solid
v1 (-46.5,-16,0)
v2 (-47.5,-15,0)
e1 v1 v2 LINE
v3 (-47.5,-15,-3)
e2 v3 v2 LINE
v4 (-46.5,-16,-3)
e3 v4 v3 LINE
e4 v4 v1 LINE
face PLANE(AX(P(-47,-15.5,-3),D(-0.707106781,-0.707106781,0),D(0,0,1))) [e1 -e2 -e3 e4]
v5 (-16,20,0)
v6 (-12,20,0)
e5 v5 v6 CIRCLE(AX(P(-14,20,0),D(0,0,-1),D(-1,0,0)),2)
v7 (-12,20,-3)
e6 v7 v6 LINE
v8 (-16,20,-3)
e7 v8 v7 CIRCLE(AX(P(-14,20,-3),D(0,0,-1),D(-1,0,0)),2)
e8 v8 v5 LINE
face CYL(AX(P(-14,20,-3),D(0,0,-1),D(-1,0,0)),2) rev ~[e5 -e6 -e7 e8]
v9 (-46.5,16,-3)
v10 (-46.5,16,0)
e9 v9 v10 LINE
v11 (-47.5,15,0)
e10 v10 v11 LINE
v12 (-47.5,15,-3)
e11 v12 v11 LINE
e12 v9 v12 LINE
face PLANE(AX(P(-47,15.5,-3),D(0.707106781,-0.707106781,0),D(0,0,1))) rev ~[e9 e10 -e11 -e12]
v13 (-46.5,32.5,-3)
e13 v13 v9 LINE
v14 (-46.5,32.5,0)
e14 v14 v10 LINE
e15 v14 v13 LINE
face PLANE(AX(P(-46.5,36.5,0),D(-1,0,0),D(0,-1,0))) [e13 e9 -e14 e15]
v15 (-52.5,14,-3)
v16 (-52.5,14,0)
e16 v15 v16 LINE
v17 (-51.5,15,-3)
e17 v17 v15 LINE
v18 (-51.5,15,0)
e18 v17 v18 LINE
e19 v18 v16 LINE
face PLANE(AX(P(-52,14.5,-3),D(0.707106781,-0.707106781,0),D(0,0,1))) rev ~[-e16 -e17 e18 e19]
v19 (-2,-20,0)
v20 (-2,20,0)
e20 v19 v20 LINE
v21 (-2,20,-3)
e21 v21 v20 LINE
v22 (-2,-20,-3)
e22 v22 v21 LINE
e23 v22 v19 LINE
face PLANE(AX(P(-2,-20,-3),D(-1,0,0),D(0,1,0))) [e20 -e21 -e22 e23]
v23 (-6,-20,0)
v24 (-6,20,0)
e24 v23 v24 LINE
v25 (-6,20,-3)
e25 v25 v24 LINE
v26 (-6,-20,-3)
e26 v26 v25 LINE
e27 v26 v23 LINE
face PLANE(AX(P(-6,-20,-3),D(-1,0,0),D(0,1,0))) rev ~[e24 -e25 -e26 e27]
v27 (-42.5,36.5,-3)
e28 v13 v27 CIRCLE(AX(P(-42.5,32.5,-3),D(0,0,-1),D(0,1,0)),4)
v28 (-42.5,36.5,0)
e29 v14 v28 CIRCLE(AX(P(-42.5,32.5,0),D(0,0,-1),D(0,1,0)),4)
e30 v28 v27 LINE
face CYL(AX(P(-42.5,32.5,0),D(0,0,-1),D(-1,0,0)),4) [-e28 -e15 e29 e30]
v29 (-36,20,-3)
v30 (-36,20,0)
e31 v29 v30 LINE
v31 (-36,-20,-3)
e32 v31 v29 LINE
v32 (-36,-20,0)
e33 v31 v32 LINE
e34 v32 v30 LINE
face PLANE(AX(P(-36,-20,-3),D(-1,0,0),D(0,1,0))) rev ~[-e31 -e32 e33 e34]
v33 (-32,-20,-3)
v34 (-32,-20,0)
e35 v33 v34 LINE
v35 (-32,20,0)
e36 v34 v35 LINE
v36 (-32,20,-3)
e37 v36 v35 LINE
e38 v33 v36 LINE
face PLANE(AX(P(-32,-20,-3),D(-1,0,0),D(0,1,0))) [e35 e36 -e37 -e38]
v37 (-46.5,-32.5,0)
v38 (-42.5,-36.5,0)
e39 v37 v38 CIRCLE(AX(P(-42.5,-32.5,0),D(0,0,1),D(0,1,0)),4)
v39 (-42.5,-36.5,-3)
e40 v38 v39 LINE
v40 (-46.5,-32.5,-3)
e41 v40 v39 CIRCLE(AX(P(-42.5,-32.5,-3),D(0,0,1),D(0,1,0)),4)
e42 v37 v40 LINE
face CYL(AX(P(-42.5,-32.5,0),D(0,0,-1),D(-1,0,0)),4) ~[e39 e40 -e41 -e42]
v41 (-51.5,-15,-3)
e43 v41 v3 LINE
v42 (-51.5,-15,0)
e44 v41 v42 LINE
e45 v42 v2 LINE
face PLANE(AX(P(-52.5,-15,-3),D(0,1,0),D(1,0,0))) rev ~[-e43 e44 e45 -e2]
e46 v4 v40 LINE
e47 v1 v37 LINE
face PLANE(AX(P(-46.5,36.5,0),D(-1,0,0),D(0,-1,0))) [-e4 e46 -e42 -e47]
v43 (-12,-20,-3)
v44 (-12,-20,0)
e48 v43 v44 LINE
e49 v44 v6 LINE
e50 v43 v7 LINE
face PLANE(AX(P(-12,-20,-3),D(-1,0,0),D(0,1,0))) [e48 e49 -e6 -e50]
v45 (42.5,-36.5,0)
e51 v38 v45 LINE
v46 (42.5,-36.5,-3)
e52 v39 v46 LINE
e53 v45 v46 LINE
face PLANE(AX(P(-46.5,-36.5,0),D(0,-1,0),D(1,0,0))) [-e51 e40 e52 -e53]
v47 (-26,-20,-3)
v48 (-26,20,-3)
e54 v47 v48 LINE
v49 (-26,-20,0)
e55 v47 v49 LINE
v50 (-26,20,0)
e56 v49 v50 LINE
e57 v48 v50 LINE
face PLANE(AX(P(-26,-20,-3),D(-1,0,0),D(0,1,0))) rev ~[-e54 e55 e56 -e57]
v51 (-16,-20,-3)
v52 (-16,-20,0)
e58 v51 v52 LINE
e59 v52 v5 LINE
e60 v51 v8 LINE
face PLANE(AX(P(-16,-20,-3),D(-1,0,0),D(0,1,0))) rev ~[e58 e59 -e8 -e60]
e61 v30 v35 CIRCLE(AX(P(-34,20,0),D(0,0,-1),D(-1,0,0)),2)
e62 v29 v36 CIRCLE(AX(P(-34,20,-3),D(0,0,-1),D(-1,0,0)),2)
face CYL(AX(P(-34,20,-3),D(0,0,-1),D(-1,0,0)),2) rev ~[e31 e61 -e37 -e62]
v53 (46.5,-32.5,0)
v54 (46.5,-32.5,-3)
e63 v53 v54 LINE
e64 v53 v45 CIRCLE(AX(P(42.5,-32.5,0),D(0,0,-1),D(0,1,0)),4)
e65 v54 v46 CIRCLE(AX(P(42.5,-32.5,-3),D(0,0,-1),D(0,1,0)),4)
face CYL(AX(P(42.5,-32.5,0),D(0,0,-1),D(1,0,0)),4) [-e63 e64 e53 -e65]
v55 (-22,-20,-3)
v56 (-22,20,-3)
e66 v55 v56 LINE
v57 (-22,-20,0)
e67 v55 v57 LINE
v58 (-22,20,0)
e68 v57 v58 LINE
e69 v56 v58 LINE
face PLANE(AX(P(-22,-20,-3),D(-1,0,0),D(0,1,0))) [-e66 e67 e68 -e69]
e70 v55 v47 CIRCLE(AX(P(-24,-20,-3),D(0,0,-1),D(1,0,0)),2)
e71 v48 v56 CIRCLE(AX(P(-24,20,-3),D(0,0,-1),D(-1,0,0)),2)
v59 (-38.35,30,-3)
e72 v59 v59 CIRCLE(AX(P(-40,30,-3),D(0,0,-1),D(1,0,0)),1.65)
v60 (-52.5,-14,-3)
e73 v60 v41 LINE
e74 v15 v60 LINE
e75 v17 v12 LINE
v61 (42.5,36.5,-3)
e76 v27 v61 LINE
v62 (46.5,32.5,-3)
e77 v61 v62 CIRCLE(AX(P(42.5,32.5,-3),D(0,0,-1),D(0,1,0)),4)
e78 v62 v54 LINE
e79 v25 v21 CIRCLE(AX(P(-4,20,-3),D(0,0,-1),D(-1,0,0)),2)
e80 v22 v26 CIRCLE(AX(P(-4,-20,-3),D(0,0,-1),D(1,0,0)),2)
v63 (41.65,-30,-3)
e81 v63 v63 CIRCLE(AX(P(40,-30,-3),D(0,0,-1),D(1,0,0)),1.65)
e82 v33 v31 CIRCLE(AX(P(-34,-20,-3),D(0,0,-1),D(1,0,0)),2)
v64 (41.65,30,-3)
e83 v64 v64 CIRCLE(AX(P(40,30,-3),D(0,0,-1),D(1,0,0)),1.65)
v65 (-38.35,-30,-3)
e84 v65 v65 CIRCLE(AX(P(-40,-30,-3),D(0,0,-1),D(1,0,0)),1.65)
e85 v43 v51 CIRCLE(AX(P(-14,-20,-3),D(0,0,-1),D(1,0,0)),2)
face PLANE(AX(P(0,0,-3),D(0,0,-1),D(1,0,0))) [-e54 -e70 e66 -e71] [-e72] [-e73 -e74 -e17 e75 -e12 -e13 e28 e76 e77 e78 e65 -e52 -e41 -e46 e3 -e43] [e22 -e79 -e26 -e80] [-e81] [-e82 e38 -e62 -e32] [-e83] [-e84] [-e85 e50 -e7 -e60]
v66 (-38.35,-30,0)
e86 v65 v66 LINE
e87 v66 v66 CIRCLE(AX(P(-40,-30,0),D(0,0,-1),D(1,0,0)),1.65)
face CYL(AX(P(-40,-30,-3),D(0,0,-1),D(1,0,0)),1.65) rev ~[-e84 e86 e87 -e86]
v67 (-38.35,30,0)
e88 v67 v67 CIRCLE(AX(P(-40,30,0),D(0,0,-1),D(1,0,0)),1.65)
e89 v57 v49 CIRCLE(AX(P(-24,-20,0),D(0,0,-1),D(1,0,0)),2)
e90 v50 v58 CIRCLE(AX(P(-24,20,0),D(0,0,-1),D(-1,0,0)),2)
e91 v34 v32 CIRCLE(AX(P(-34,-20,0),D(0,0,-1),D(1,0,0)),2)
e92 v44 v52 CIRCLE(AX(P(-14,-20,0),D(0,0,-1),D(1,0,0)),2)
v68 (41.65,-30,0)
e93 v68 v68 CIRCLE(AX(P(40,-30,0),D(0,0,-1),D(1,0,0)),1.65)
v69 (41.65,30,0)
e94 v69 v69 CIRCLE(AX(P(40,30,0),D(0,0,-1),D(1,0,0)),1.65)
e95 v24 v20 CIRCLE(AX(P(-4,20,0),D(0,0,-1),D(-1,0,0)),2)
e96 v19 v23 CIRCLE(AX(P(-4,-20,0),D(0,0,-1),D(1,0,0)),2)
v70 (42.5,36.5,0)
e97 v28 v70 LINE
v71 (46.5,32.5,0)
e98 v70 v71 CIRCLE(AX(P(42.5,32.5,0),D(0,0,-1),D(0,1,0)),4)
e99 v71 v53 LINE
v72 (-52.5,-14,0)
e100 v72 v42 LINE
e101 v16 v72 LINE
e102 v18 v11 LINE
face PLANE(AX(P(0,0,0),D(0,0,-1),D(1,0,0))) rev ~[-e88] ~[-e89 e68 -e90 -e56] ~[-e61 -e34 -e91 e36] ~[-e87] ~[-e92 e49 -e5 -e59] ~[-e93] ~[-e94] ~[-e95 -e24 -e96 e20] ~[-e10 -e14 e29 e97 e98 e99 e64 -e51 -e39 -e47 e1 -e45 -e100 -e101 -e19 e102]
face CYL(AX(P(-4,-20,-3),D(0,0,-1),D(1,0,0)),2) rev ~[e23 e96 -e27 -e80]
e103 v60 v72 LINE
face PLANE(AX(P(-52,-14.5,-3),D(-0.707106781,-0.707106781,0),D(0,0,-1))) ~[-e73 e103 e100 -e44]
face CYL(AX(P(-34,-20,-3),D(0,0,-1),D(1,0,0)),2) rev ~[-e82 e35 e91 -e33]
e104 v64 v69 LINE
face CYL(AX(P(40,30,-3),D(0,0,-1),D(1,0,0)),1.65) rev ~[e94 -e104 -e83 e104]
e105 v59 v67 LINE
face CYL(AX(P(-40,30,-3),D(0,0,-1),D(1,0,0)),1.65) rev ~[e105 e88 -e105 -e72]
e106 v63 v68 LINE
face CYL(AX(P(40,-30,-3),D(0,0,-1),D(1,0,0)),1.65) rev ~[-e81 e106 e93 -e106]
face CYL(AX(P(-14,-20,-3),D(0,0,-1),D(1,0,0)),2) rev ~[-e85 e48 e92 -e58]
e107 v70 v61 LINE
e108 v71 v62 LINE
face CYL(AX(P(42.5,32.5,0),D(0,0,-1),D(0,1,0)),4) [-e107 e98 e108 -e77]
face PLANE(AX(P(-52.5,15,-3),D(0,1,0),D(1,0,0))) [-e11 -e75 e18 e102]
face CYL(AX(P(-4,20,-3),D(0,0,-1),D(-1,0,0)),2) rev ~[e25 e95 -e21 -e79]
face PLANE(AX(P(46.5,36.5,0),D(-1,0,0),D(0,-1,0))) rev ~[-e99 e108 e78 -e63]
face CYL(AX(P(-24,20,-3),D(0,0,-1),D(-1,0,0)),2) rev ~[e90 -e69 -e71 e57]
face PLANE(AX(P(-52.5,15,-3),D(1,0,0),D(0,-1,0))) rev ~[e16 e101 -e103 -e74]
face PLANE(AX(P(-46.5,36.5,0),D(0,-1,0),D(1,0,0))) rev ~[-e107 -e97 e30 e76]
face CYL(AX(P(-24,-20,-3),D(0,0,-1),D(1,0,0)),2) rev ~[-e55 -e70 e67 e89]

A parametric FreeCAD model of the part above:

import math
import FreeCAD as App
import Part
import Sketcher


def edges_at(feature, points):
    """Names of the edges that pass closest to the given points."""
    edges = feature.Shape.Edges
    near = lambda p: min(range(len(edges)), key=lambda i: edges[i].distToShape(Part.Vertex(*p))[0])
    return sorted({f"Edge{near(p) + 1}" for p in points})

doc = App.newDocument("Part")
body = doc.addObject("PartDesign::Body", "Body")

# Sketch on XY plane
sketch1 = doc.addObject("Sketcher::SketchObject", "Sketch")
body.addObject(sketch1)
sketch1.AttachmentSupport = (doc.XY_Plane, [""])
sketch1.MapMode = "FlatFace"
sketch1.addGeometry(Part.LineSegment(App.Vector(-46, -36, 0), App.Vector(-46, 36, 0)), False)
sketch1.addGeometry(Part.LineSegment(App.Vector(-46, 36, 0), App.Vector(46, 36, 0)), False)
sketch1.addGeometry(Part.LineSegment(App.Vector(46, 36, 0), App.Vector(46, -36, 0)), False)
sketch1.addGeometry(Part.LineSegment(App.Vector(46, -36, 0), App.Vector(-46, -36, 0)), False)
sketch1.addConstraint(Sketcher.Constraint("Coincident", 0, 2, 1, 1))
sketch1.addConstraint(Sketcher.Constraint("Coincident", 1, 2, 2, 1))
sketch1.addConstraint(Sketcher.Constraint("Coincident", 2, 2, 3, 1))
sketch1.addConstraint(Sketcher.Constraint("Coincident", 3, 2, 0, 1))
sketch1.addConstraint(Sketcher.Constraint("Vertical", 0))
sketch1.addConstraint(Sketcher.Constraint("Horizontal", 1))
sketch1.addConstraint(Sketcher.Constraint("Vertical", 2))
sketch1.addConstraint(Sketcher.Constraint("Horizontal", 3))
sketch1.addConstraint(Sketcher.Constraint("Symmetric", 0, 2, 2, 2, -1, 1))
sketch1.addConstraint(Sketcher.Constraint("DistanceX", 1, 1, 1, 2, 93.0))
sketch1.addConstraint(Sketcher.Constraint("DistanceY", 0, 1, 0, 2, 73.0))
pad1 = doc.addObject("PartDesign::Pad", "Pad")
body.addObject(pad1)
pad1.Profile = sketch1
pad1.Length = 3
pad1.Reversed = True
doc.recompute()

fillet = doc.addObject("PartDesign::Fillet", "Fillet")
body.addObject(fillet)
fillet.Base = (pad1, edges_at(pad1, [
    (-46.5, 36.5, -1.5),
    (-46.5, -36.5, -1.5),
    (46.5, -36.5, -1.5),
    (46.5, 36.5, -1.5),
]))
fillet.Radius = 4

# Sketch on XY plane
sketch2 = doc.addObject("Sketcher::SketchObject", "Sketch001")
body.addObject(sketch2)
sketch2.AttachmentSupport = (doc.XY_Plane, [""])
sketch2.MapMode = "FlatFace"
sketch2.AttachmentOffset = App.Placement(App.Vector(0, 0, -3), App.Rotation())
sketch2.addGeometry(Part.Circle(App.Vector(-40, -30, 0), App.Vector(0, 0, 1), 1.6), False)
sketch2.addGeometry(Part.Circle(App.Vector(-40, 30, 0), App.Vector(0, 0, 1), 1.6), False)
sketch2.addGeometry(Part.Circle(App.Vector(40, -30, 0), App.Vector(0, 0, 1), 1.6), False)
sketch2.addGeometry(Part.Circle(App.Vector(40, 30, 0), App.Vector(0, 0, 1), 1.6), False)
sketch2.addConstraint(Sketcher.Constraint("Equal", 0, 1))
sketch2.addConstraint(Sketcher.Constraint("Equal", 1, 2))
sketch2.addConstraint(Sketcher.Constraint("Equal", 2, 3))
sketch2.addConstraint(Sketcher.Constraint("Symmetric", 1, 3, 2, 3, -1, 1))
sketch2.addConstraint(Sketcher.Constraint("Symmetric", 0, 3, 3, 3, -1, 1))
sketch2.addConstraint(Sketcher.Constraint("Symmetric", 0, 3, 2, 3, -2))
sketch2.addConstraint(Sketcher.Constraint("Diameter", 0, 3.3))
sketch2.addConstraint(Sketcher.Constraint("DistanceX", 0, 3, -1, 1, 40.0))
sketch2.addConstraint(Sketcher.Constraint("DistanceY", 0, 3, -1, 1, 30.0))
pocket1 = doc.addObject("PartDesign::Pocket", "Pocket")
body.addObject(pocket1)
pocket1.Profile = sketch2
pocket1.Type = "ThroughAll"
pocket1.Reversed = True

# Sketch on XY plane
sketch3 = doc.addObject("Sketcher::SketchObject", "Sketch002")
body.addObject(sketch3)
sketch3.AttachmentSupport = (doc.XY_Plane, [""])
sketch3.MapMode = "FlatFace"
sketch3.AttachmentOffset = App.Placement(App.Vector(0, 0, -3), App.Rotation())
sketch3.addGeometry(Part.LineSegment(App.Vector(-52, -15, 0), App.Vector(-52, 15, 0)), False)
sketch3.addGeometry(Part.LineSegment(App.Vector(-52, 15, 0), App.Vector(-46, 15, 0)), False)
sketch3.addGeometry(Part.LineSegment(App.Vector(-46, 15, 0), App.Vector(-46, -15, 0)), False)
sketch3.addGeometry(Part.LineSegment(App.Vector(-46, -15, 0), App.Vector(-52, -15, 0)), False)
sketch3.addConstraint(Sketcher.Constraint("Coincident", 0, 2, 1, 1))
sketch3.addConstraint(Sketcher.Constraint("Coincident", 1, 2, 2, 1))
sketch3.addConstraint(Sketcher.Constraint("Coincident", 2, 2, 3, 1))
sketch3.addConstraint(Sketcher.Constraint("Coincident", 3, 2, 0, 1))
sketch3.addConstraint(Sketcher.Constraint("Vertical", 0))
sketch3.addConstraint(Sketcher.Constraint("Horizontal", 1))
sketch3.addConstraint(Sketcher.Constraint("Vertical", 2))
sketch3.addConstraint(Sketcher.Constraint("Horizontal", 3))
sketch3.addConstraint(Sketcher.Constraint("DistanceX", 1, 1, 1, 2, 6.0))
sketch3.addConstraint(Sketcher.Constraint("DistanceY", 0, 1, 0, 2, 30.0))
sketch3.addConstraint(Sketcher.Constraint("DistanceY", -1, 1, 0, 2, 15.0))
sketch3.addConstraint(Sketcher.Constraint("DistanceX", 0, 2, -1, 1, 52.5))
pad2 = doc.addObject("PartDesign::Pad", "Pad001")
body.addObject(pad2)
pad2.Profile = sketch3
pad2.Length = 3
doc.recompute()

chamfer = doc.addObject("PartDesign::Chamfer", "Chamfer")
body.addObject(chamfer)
chamfer.Base = (pad2, edges_at(pad2, [
    (-52.5, 15, -1.5),
    (-52.5, -15, -1.5),
    (-46.5, -15, -1.5),
    (-46.5, 15, -1.5),
]))
chamfer.Size = 1

# Sketch on XY plane
sketch4 = doc.addObject("Sketcher::SketchObject", "Sketch003")
body.addObject(sketch4)
sketch4.AttachmentSupport = (doc.XY_Plane, [""])
sketch4.MapMode = "FlatFace"
sketch4.AttachmentOffset = App.Placement(App.Vector(0, 0, -3), App.Rotation())
sketch4.addGeometry(Part.ArcOfCircle(Part.Circle(App.Vector(-34, -20, 0), App.Vector(0, 0, 1), 2), math.radians(180), math.radians(360)), False)
sketch4.addGeometry(Part.LineSegment(App.Vector(-36, -20, 0), App.Vector(-36, 20, 0)), False)
sketch4.addGeometry(Part.ArcOfCircle(Part.Circle(App.Vector(-34, 20, 0), App.Vector(0, 0, 1), 2), math.radians(0), math.radians(180)), False)
sketch4.addGeometry(Part.LineSegment(App.Vector(-32, 20, 0), App.Vector(-32, -20, 0)), False)
sketch4.addConstraint(Sketcher.Constraint("Tangent", 0, 1, 1, 1))
sketch4.addConstraint(Sketcher.Constraint("Tangent", 1, 2, 2, 2))
sketch4.addConstraint(Sketcher.Constraint("Tangent", 2, 1, 3, 1))
sketch4.addConstraint(Sketcher.Constraint("Tangent", 3, 2, 0, 2))
sketch4.addConstraint(Sketcher.Constraint("Vertical", 1))
sketch4.addConstraint(Sketcher.Constraint("Vertical", 3))
sketch4.addConstraint(Sketcher.Constraint("Radius", 0, 2.0))
sketch4.addConstraint(Sketcher.Constraint("DistanceY", 1, 1, 1, 2, 40.0))
sketch4.addConstraint(Sketcher.Constraint("DistanceX", 0, 3, -1, 1, 34.0))
sketch4.addConstraint(Sketcher.Constraint("DistanceY", 0, 3, -1, 1, 20.0))
pocket2 = doc.addObject("PartDesign::Pocket", "Pocket001")
body.addObject(pocket2)
pocket2.Profile = sketch4
pocket2.Type = "ThroughAll"
pocket2.Reversed = True
doc.recompute()

linearpattern = doc.addObject("PartDesign::LinearPattern", "LinearPattern")
body.addObject(linearpattern)
linearpattern.Originals = [pocket2]
linearpattern.Direction = (doc.X_Axis, [""])
linearpattern.Mode = "offset"
linearpattern.Offset = 10
linearpattern.Occurrences = 4
body.Tip = linearpattern

doc.recompute()
